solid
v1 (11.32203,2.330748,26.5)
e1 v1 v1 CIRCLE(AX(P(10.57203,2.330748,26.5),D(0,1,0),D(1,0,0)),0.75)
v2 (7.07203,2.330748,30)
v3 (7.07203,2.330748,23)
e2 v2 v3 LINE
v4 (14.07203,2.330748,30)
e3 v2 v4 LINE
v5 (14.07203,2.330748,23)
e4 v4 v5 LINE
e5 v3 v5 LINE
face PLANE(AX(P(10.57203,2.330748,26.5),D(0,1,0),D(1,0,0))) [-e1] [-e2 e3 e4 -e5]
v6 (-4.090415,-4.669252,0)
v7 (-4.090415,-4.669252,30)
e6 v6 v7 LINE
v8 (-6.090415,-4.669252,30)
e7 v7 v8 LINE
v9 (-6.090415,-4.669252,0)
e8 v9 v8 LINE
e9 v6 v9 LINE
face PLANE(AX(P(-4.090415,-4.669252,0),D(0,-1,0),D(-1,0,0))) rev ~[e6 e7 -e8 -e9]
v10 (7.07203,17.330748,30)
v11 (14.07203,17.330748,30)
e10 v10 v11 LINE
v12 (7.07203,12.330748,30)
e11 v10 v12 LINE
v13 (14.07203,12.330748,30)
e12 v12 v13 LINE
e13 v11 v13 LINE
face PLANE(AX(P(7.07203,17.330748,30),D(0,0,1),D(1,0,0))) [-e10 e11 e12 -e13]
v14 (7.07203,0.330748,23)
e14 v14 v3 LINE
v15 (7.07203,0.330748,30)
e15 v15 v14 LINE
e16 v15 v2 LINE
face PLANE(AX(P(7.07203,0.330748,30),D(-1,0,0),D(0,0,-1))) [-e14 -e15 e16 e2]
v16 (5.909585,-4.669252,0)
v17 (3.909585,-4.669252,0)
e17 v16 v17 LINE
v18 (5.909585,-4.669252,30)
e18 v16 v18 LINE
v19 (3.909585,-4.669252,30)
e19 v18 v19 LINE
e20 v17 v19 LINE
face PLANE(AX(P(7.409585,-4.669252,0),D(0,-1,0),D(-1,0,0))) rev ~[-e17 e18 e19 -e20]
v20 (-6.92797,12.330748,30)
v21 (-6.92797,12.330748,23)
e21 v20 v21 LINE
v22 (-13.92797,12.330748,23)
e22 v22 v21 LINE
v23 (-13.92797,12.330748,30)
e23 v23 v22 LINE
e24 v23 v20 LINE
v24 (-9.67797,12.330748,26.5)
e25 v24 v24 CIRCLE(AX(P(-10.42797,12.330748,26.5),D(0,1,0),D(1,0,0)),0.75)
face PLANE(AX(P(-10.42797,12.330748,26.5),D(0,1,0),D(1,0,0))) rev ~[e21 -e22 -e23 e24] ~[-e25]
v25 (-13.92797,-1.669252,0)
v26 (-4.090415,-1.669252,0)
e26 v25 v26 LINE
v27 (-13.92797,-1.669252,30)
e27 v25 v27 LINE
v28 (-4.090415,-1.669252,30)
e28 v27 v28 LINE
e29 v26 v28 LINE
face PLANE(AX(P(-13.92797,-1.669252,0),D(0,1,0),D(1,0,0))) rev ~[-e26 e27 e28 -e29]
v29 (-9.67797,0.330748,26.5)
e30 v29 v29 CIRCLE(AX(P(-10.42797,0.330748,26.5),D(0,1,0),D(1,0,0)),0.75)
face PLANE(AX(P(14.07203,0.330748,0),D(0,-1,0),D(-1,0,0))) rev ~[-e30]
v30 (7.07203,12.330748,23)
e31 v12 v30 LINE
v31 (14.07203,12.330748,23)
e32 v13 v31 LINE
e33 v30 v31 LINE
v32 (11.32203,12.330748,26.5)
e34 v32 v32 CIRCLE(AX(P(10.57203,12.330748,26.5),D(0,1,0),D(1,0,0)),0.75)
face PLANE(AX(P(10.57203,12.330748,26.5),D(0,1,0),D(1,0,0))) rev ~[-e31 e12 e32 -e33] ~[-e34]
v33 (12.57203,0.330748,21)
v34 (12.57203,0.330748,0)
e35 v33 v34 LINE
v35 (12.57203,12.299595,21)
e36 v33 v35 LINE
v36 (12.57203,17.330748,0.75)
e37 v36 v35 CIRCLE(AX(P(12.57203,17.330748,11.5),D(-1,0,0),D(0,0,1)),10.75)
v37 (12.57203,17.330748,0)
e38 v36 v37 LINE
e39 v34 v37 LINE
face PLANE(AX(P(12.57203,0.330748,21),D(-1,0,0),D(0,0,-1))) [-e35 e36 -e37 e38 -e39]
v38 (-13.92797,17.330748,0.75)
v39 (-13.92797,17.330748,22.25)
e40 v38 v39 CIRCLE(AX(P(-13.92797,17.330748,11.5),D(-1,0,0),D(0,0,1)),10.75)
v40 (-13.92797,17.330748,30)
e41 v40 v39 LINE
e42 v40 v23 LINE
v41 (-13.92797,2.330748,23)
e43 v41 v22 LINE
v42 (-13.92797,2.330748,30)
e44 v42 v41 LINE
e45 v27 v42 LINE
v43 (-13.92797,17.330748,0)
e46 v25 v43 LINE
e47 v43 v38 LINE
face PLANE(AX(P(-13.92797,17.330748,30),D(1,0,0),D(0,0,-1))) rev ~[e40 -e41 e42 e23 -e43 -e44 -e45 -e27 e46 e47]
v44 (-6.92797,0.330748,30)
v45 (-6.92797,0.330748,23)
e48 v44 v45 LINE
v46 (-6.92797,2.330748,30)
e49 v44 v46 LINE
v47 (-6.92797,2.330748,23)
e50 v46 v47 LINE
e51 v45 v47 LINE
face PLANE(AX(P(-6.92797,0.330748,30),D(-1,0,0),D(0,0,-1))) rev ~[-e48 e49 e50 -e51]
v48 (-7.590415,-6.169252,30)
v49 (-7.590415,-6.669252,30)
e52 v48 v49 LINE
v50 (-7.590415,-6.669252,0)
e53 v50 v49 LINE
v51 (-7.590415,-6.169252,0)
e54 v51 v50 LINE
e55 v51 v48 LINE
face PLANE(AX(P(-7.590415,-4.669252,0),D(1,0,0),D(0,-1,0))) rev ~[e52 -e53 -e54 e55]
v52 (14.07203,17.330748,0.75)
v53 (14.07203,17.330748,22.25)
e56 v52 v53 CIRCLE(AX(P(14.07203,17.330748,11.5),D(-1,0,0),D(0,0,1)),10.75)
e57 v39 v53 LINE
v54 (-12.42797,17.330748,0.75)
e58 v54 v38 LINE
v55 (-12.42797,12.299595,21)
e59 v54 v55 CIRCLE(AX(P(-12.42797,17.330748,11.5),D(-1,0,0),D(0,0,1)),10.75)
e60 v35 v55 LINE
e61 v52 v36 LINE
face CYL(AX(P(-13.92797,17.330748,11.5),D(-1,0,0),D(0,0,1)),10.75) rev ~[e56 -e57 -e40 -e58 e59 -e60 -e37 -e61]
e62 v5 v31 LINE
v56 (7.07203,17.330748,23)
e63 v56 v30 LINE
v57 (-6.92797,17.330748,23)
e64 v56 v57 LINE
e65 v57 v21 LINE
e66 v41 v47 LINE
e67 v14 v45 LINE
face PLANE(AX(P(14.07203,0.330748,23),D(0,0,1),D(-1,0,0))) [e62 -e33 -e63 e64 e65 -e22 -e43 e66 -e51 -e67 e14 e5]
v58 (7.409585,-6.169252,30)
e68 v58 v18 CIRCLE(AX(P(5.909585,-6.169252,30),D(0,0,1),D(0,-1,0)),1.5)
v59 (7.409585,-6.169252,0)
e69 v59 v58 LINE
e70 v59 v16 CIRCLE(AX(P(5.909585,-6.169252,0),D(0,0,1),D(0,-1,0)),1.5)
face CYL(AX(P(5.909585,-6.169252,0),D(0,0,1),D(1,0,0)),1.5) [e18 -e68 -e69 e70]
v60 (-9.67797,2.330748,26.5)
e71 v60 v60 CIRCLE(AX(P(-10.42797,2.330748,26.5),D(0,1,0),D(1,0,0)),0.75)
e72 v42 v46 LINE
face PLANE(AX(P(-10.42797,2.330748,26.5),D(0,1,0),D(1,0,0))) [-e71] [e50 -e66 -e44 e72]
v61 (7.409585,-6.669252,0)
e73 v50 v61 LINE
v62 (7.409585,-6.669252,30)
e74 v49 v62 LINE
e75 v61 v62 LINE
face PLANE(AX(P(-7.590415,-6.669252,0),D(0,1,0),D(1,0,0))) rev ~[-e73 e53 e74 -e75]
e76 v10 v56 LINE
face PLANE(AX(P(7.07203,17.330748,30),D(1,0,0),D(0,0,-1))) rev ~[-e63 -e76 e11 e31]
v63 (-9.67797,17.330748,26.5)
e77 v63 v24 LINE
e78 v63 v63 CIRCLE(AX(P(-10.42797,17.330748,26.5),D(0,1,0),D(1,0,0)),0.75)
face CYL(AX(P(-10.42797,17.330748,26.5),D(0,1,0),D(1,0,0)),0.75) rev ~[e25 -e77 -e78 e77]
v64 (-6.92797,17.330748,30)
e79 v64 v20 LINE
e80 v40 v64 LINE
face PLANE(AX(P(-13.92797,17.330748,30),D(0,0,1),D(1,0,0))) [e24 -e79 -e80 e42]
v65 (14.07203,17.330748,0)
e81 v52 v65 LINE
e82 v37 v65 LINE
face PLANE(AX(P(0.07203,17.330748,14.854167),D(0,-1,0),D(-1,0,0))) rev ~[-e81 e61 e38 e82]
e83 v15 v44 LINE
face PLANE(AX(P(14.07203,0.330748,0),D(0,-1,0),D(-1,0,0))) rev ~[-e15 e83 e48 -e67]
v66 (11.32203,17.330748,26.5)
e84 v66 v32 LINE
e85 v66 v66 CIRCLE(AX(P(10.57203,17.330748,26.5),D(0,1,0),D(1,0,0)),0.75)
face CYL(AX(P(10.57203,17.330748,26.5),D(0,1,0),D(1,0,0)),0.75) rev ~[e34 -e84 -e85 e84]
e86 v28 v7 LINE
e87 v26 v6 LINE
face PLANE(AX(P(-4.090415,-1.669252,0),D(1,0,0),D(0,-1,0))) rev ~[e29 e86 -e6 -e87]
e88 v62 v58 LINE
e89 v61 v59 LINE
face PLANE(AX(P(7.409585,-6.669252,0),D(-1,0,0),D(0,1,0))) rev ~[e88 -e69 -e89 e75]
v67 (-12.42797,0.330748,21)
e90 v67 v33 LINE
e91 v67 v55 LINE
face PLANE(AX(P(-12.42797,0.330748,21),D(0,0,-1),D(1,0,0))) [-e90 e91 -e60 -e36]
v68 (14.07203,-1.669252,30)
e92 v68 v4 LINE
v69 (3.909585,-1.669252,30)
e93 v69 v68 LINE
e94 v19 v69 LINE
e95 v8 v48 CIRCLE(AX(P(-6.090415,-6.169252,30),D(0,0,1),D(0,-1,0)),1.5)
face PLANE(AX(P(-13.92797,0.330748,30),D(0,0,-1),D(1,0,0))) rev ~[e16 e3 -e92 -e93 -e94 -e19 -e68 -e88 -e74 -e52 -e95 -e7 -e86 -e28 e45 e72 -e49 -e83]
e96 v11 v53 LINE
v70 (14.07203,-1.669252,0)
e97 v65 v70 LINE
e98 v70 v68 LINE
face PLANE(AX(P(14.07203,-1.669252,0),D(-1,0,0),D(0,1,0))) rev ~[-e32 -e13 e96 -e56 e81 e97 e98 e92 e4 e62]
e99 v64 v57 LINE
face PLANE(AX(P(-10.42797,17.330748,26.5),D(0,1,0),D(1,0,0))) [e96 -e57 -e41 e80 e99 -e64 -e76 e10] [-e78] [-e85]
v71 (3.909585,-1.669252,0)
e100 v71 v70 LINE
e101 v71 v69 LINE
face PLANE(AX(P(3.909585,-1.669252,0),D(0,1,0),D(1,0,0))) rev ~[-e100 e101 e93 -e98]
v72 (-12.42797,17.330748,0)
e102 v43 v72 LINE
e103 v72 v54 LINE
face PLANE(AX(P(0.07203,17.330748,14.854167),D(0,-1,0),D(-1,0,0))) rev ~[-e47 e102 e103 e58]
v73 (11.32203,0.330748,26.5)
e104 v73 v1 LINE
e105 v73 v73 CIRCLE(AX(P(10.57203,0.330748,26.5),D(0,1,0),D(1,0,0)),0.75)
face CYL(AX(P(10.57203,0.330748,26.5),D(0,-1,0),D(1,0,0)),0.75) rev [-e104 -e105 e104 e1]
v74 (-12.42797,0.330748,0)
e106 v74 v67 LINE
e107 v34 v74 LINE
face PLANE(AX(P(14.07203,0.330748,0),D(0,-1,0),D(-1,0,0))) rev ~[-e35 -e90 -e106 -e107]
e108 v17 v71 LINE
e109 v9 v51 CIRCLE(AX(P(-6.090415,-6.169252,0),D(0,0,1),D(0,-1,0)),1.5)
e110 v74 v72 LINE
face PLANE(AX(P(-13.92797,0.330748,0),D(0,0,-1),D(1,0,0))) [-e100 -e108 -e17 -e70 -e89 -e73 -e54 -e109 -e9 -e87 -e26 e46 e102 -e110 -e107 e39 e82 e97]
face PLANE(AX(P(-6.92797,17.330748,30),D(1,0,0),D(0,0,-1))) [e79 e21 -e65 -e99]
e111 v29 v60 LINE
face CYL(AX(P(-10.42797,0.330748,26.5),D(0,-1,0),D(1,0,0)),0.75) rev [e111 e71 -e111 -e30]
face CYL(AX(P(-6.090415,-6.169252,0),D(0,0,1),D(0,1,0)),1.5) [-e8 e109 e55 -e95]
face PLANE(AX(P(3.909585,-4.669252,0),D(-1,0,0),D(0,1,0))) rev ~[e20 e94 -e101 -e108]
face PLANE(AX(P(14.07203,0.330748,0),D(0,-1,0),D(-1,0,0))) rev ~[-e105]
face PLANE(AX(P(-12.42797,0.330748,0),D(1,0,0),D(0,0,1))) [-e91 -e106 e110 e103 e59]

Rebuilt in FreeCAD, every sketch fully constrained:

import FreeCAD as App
import Part
import Sketcher
from FreeCAD import Vector


def edges_at(feature, points):
    """Names of the edges that pass closest to the given points."""
    edges = feature.Shape.Edges
    near = lambda p: min(range(len(edges)), key=lambda i: edges[i].distToShape(Part.Vertex(*p))[0])
    return sorted({f"Edge{near(p) + 1}" for p in points})

doc = App.newDocument("Part")
body = doc.addObject("PartDesign::Body", "Body")

# Sketch on XY plane
sketch1 = doc.addObject("Sketcher::SketchObject", "Sketch")
body.addObject(sketch1)
sketch1.AttachmentSupport = (doc.XY_Plane, [""])
sketch1.MapMode = "FlatFace"
sketch1.addGeometry(Part.LineSegment(Vector(-13.9, -1.7, 0), Vector(-4.1, -1.7, 0)), False)
sketch1.addGeometry(Part.LineSegment(Vector(-4.1, -1.7, 0), Vector(-4.1, -4.7, 0)), False)
sketch1.addGeometry(Part.LineSegment(Vector(-4.1, -4.7, 0), Vector(-7.6, -4.7, 0)), False)
sketch1.addGeometry(Part.LineSegment(Vector(-7.6, -4.7, 0), Vector(-7.6, -6.7, 0)), False)
sketch1.addGeometry(Part.LineSegment(Vector(-7.6, -6.7, 0), Vector(7.4, -6.7, 0)), False)
sketch1.addGeometry(Part.LineSegment(Vector(7.4, -6.7, 0), Vector(7.4, -4.7, 0)), False)
sketch1.addGeometry(Part.LineSegment(Vector(7.4, -4.7, 0), Vector(3.9, -4.7, 0)), False)
sketch1.addGeometry(Part.LineSegment(Vector(3.9, -4.7, 0), Vector(3.9, -1.7, 0)), False)
sketch1.addGeometry(Part.LineSegment(Vector(3.9, -1.7, 0), Vector(14.1, -1.7, 0)), False)
sketch1.addGeometry(Part.LineSegment(Vector(14.1, -1.7, 0), Vector(14.1, 0.3, 0)), False)
sketch1.addGeometry(Part.LineSegment(Vector(14.1, 0.3, 0), Vector(-13.9, 0.3, 0)), False)
sketch1.addGeometry(Part.LineSegment(Vector(-13.9, 0.3, 0), Vector(-13.9, -1.7, 0)), False)
sketch1.addConstraint(Sketcher.Constraint("Coincident", 0, 2, 1, 1))
sketch1.addConstraint(Sketcher.Constraint("Coincident", 1, 2, 2, 1))
sketch1.addConstraint(Sketcher.Constraint("Coincident", 2, 2, 3, 1))
sketch1.addConstraint(Sketcher.Constraint("Coincident", 3, 2, 4, 1))
sketch1.addConstraint(Sketcher.Constraint("Coincident", 4, 2, 5, 1))
sketch1.addConstraint(Sketcher.Constraint("Coincident", 5, 2, 6, 1))
sketch1.addConstraint(Sketcher.Constraint("Coincident", 6, 2, 7, 1))
sketch1.addConstraint(Sketcher.Constraint("Coincident", 7, 2, 8, 1))
sketch1.addConstraint(Sketcher.Constraint("Coincident", 8, 2, 9, 1))
sketch1.addConstraint(Sketcher.Constraint("Coincident", 9, 2, 10, 1))
sketch1.addConstraint(Sketcher.Constraint("Coincident", 10, 2, 11, 1))
sketch1.addConstraint(Sketcher.Constraint("Coincident", 11, 2, 0, 1))
sketch1.addConstraint(Sketcher.Constraint("Horizontal", 0))
sketch1.addConstraint(Sketcher.Constraint("Vertical", 1))
sketch1.addConstraint(Sketcher.Constraint("Horizontal", 2))
sketch1.addConstraint(Sketcher.Constraint("Vertical", 3))
sketch1.addConstraint(Sketcher.Constraint("Horizontal", 4))
sketch1.addConstraint(Sketcher.Constraint("Vertical", 5))
sketch1.addConstraint(Sketcher.Constraint("Horizontal", 6))
sketch1.addConstraint(Sketcher.Constraint("Vertical", 7))
sketch1.addConstraint(Sketcher.Constraint("Horizontal", 8))
sketch1.addConstraint(Sketcher.Constraint("Vertical", 9))
sketch1.addConstraint(Sketcher.Constraint("Horizontal", 10))
sketch1.addConstraint(Sketcher.Constraint("Vertical", 11))
sketch1.addConstraint(Sketcher.Constraint("Horizontal", 2, 2, 5, 2))
sketch1.addConstraint(Sketcher.Constraint("Horizontal", 0, 2, 7, 2))
sketch1.addConstraint(Sketcher.Constraint("Equal", 2, 6))
sketch1.addConstraint(Sketcher.Constraint("Equal", 5, 9))
sketch1.addConstraint(Sketcher.Constraint("DistanceX", 4, 1, 4, 2, 15.0))
sketch1.addConstraint(Sketcher.Constraint("DistanceX", 10, 2, 10, 1, 28.0))
sketch1.addConstraint(Sketcher.Constraint("DistanceY", 1, 2, 1, 1, 3.0))
sketch1.addConstraint(Sketcher.Constraint("DistanceY", 3, 2, 3, 1, 2.0))
sketch1.addConstraint(Sketcher.Constraint("DistanceX", 2, 2, 2, 1, 3.5))
sketch1.addConstraint(Sketcher.Constraint("DistanceX", 0, 1, 0, 2, 9.837555))
sketch1.addConstraint(Sketcher.Constraint("DistanceY", 0, 2, -1, 1, 1.669252))
sketch1.addConstraint(Sketcher.Constraint("DistanceX", -1, 1, 8, 2, 14.07203))
pad1 = doc.addObject("PartDesign::Pad", "Pad")
body.addObject(pad1)
pad1.Profile = sketch1
pad1.Length = 30
doc.recompute()

fillet = doc.addObject("PartDesign::Fillet", "Fillet")
body.addObject(fillet)
fillet.Base = (pad1, edges_at(pad1, [(7.41, -4.669, 15), (-7.59, -4.669, 15)]))
fillet.Radius = 1.5

# Sketch on XZ plane
sketch2 = doc.addObject("Sketcher::SketchObject", "Sketch001")
body.addObject(sketch2)
sketch2.AttachmentSupport = (doc.XZ_Plane, [""])
sketch2.MapMode = "FlatFace"
sketch2.AttachmentOffset = App.Placement(Vector(0, 0, -0.330748), App.Rotation())
sketch2.addGeometry(Part.LineSegment(Vector(-12.4, 0, 0), Vector(-13.9, 0, 0)), False)
sketch2.addGeometry(Part.LineSegment(Vector(-13.9, 0, 0), Vector(-13.9, 23, 0)), False)
sketch2.addGeometry(Part.LineSegment(Vector(-13.9, 23, 0), Vector(14.1, 23, 0)), False)
sketch2.addGeometry(Part.LineSegment(Vector(14.1, 23, 0), Vector(14.1, 0, 0)), False)
sketch2.addGeometry(Part.LineSegment(Vector(14.1, 0, 0), Vector(12.6, 0, 0)), False)
sketch2.addGeometry(Part.LineSegment(Vector(12.6, 0, 0), Vector(12.6, 21, 0)), False)
sketch2.addGeometry(Part.LineSegment(Vector(12.6, 21, 0), Vector(-12.4, 21, 0)), False)
sketch2.addGeometry(Part.LineSegment(Vector(-12.4, 21, 0), Vector(-12.4, 0, 0)), False)
sketch2.addConstraint(Sketcher.Constraint("Coincident", 0, 2, 1, 1))
sketch2.addConstraint(Sketcher.Constraint("Coincident", 1, 2, 2, 1))
sketch2.addConstraint(Sketcher.Constraint("Coincident", 2, 2, 3, 1))
sketch2.addConstraint(Sketcher.Constraint("Coincident", 3, 2, 4, 1))
sketch2.addConstraint(Sketcher.Constraint("Coincident", 4, 2, 5, 1))
sketch2.addConstraint(Sketcher.Constraint("Coincident", 5, 2, 6, 1))
sketch2.addConstraint(Sketcher.Constraint("Coincident", 6, 2, 7, 1))
sketch2.addConstraint(Sketcher.Constraint("Coincident", 7, 2, 0, 1))
sketch2.addConstraint(Sketcher.Constraint("Horizontal", 0))
sketch2.addConstraint(Sketcher.Constraint("Vertical", 1))
sketch2.addConstraint(Sketcher.Constraint("Horizontal", 2))
sketch2.addConstraint(Sketcher.Constraint("Vertical", 3))
sketch2.addConstraint(Sketcher.Constraint("Horizontal", 4))
sketch2.addConstraint(Sketcher.Constraint("Vertical", 5))
sketch2.addConstraint(Sketcher.Constraint("Horizontal", 6))
sketch2.addConstraint(Sketcher.Constraint("Vertical", 7))
sketch2.addConstraint(Sketcher.Constraint("PointOnObject", 0, 2, -1))
sketch2.addConstraint(Sketcher.Constraint("PointOnObject", 3, 2, -1))
sketch2.addConstraint(Sketcher.Constraint("Equal", 0, 4))
sketch2.addConstraint(Sketcher.Constraint("DistanceX", 2, 1, 2, 2, 28.0))
sketch2.addConstraint(Sketcher.Constraint("DistanceX", 6, 2, 6, 1, 25.0))
sketch2.addConstraint(Sketcher.Constraint("DistanceY", 1, 1, 1, 2, 23.0))
sketch2.addConstraint(Sketcher.Constraint("DistanceY", 5, 1, 5, 2, 21.0))
sketch2.addConstraint(Sketcher.Constraint("DistanceX", 0, 2, -1, 1, 13.92797))
pad2 = doc.addObject("PartDesign::Pad", "Pad001")
body.addObject(pad2)
pad2.Profile = sketch2
pad2.Length = 17
pad2.Reversed = True

# Sketch on YZ plane
sketch3 = doc.addObject("Sketcher::SketchObject", "Sketch002")
body.addObject(sketch3)
sketch3.AttachmentSupport = (doc.YZ_Plane, [""])
sketch3.MapMode = "FlatFace"
sketch3.AttachmentOffset = App.Placement(Vector(0, 0, -13.92797), App.Rotation())
sketch3.addGeometry(Part.Circle(Vector(17, 12, 0), Vector(0, 0, 1), 11), False)
sketch3.addConstraint(Sketcher.Constraint("Diameter", 0, 21.5))
sketch3.addConstraint(Sketcher.Constraint("DistanceY", -1, 1, 0, 3, 11.5))
sketch3.addConstraint(Sketcher.Constraint("DistanceX", -1, 1, 0, 3, 17.330748))
pocket1 = doc.addObject("PartDesign::Pocket", "Pocket")
body.addObject(pocket1)
pocket1.Profile = sketch3
pocket1.Type = "ThroughAll"
pocket1.Reversed = True

# Sketch on XZ plane
sketch4 = doc.addObject("Sketcher::SketchObject", "Sketch003")
body.addObject(sketch4)
sketch4.AttachmentSupport = (doc.XZ_Plane, [""])
sketch4.MapMode = "FlatFace"
sketch4.AttachmentOffset = App.Placement(Vector(0, 0, -0.330748), App.Rotation())
sketch4.addGeometry(Part.LineSegment(Vector(-13.9, 23, 0), Vector(-13.9, 30, 0)), False)
sketch4.addGeometry(Part.LineSegment(Vector(-13.9, 30, 0), Vector(-6.9, 30, 0)), False)
sketch4.addGeometry(Part.LineSegment(Vector(-6.9, 30, 0), Vector(-6.9, 23, 0)), False)
sketch4.addGeometry(Part.LineSegment(Vector(-6.9, 23, 0), Vector(-13.9, 23, 0)), False)
sketch4.addGeometry(Part.Circle(Vector(-10.4, 26.5, 0), Vector(0, 0, 1), 0.8), False)
sketch4.addGeometry(Part.LineSegment(Vector(7.1, 23, 0), Vector(7.1, 30, 0)), False)
sketch4.addGeometry(Part.LineSegment(Vector(7.1, 30, 0), Vector(14.1, 30, 0)), False)
sketch4.addGeometry(Part.LineSegment(Vector(14.1, 30, 0), Vector(14.1, 23, 0)), False)
sketch4.addGeometry(Part.LineSegment(Vector(14.1, 23, 0), Vector(7.1, 23, 0)), False)
sketch4.addGeometry(Part.Circle(Vector(10.6, 26.5, 0), Vector(0, 0, 1), 0.8), False)
sketch4.addConstraint(Sketcher.Constraint("Coincident", 0, 2, 1, 1))
sketch4.addConstraint(Sketcher.Constraint("Coincident", 1, 2, 2, 1))
sketch4.addConstraint(Sketcher.Constraint("Coincident", 2, 2, 3, 1))
sketch4.addConstraint(Sketcher.Constraint("Coincident", 3, 2, 0, 1))
sketch4.addConstraint(Sketcher.Constraint("Coincident", 5, 2, 6, 1))
sketch4.addConstraint(Sketcher.Constraint("Coincident", 6, 2, 7, 1))
sketch4.addConstraint(Sketcher.Constraint("Coincident", 7, 2, 8, 1))
sketch4.addConstraint(Sketcher.Constraint("Coincident", 8, 2, 5, 1))
sketch4.addConstraint(Sketcher.Constraint("Vertical", 0))
sketch4.addConstraint(Sketcher.Constraint("Horizontal", 1))
sketch4.addConstraint(Sketcher.Constraint("Vertical", 2))
sketch4.addConstraint(Sketcher.Constraint("Horizontal", 3))
sketch4.addConstraint(Sketcher.Constraint("Vertical", 5))
sketch4.addConstraint(Sketcher.Constraint("Horizontal", 6))
sketch4.addConstraint(Sketcher.Constraint("Vertical", 7))
sketch4.addConstraint(Sketcher.Constraint("Horizontal", 8))
sketch4.addConstraint(Sketcher.Constraint("Equal", 4, 9))
sketch4.addConstraint(Sketcher.Constraint("Horizontal", 4, 3, 9, 3))
sketch4.addConstraint(Sketcher.Constraint("Horizontal", 1, 2, 5, 2))
sketch4.addConstraint(Sketcher.Constraint("Horizontal", 3, 2, 7, 2))
sketch4.addConstraint(Sketcher.Constraint("Equal", 3, 6))
sketch4.addConstraint(Sketcher.Constraint("Equal", 8, 0))
sketch4.addConstraint(Sketcher.Constraint("Diameter", 4, 1.5))
sketch4.addConstraint(Sketcher.Constraint("DistanceX", 1, 1, 1, 2, 7.0))
sketch4.addConstraint(Sketcher.Constraint("DistanceY", -1, 1, 0, 2, 30.0))
sketch4.addConstraint(Sketcher.Constraint("DistanceX", 4, 3, 9, 3, 21.0))
sketch4.addConstraint(Sketcher.Constraint("DistanceX", 1, 2, 5, 2, 14.0))
sketch4.addConstraint(Sketcher.Constraint("DistanceY", -1, 1, 4, 3, 26.5))
sketch4.addConstraint(Sketcher.Constraint("DistanceX", 0, 2, 4, 3, 3.5))
sketch4.addConstraint(Sketcher.Constraint("DistanceX", 4, 3, -1, 1, 10.42797))
pad3 = doc.addObject("PartDesign::Pad", "Pad002")
body.addObject(pad3)
pad3.Profile = sketch4
pad3.Length = 2
pad3.Reversed = True

# Sketch on XZ plane
sketch5 = doc.addObject("Sketcher::SketchObject", "Sketch004")
body.addObject(sketch5)
sketch5.AttachmentSupport = (doc.XZ_Plane, [""])
sketch5.MapMode = "FlatFace"
sketch5.AttachmentOffset = App.Placement(Vector(0, 0, -17.330748), App.Rotation())
sketch5.addGeometry(Part.LineSegment(Vector(-13.9, 23, 0), Vector(-13.9, 30, 0)), False)
sketch5.addGeometry(Part.LineSegment(Vector(-13.9, 30, 0), Vector(-6.9, 30, 0)), False)
sketch5.addGeometry(Part.LineSegment(Vector(-6.9, 30, 0), Vector(-6.9, 23, 0)), False)
sketch5.addGeometry(Part.LineSegment(Vector(-6.9, 23, 0), Vector(-13.9, 23, 0)), False)
sketch5.addGeometry(Part.Circle(Vector(-10.4, 26.5, 0), Vector(0, 0, 1), 0.8), False)
sketch5.addGeometry(Part.LineSegment(Vector(7.1, 23, 0), Vector(7.1, 30, 0)), False)
sketch5.addGeometry(Part.LineSegment(Vector(7.1, 30, 0), Vector(14.1, 30, 0)), False)
sketch5.addGeometry(Part.LineSegment(Vector(14.1, 30, 0), Vector(14.1, 23, 0)), False)
sketch5.addGeometry(Part.LineSegment(Vector(14.1, 23, 0), Vector(7.1, 23, 0)), False)
sketch5.addGeometry(Part.Circle(Vector(10.6, 26.5, 0), Vector(0, 0, 1), 0.8), False)
sketch5.addConstraint(Sketcher.Constraint("Coincident", 0, 2, 1, 1))
sketch5.addConstraint(Sketcher.Constraint("Coincident", 1, 2, 2, 1))
sketch5.addConstraint(Sketcher.Constraint("Coincident", 2, 2, 3, 1))
sketch5.addConstraint(Sketcher.Constraint("Coincident", 3, 2, 0, 1))
sketch5.addConstraint(Sketcher.Constraint("Coincident", 5, 2, 6, 1))
sketch5.addConstraint(Sketcher.Constraint("Coincident", 6, 2, 7, 1))
sketch5.addConstraint(Sketcher.Constraint("Coincident", 7, 2, 8, 1))
sketch5.addConstraint(Sketcher.Constraint("Coincident", 8, 2, 5, 1))
sketch5.addConstraint(Sketcher.Constraint("Vertical", 0))
sketch5.addConstraint(Sketcher.Constraint("Horizontal", 1))
sketch5.addConstraint(Sketcher.Constraint("Vertical", 2))
sketch5.addConstraint(Sketcher.Constraint("Horizontal", 3))
sketch5.addConstraint(Sketcher.Constraint("Vertical", 5))
sketch5.addConstraint(Sketcher.Constraint("Horizontal", 6))
sketch5.addConstraint(Sketcher.Constraint("Vertical", 7))
sketch5.addConstraint(Sketcher.Constraint("Horizontal", 8))
sketch5.addConstraint(Sketcher.Constraint("Equal", 4, 9))
sketch5.addConstraint(Sketcher.Constraint("Horizontal", 4, 3, 9, 3))
sketch5.addConstraint(Sketcher.Constraint("Horizontal", 1, 2, 5, 2))
sketch5.addConstraint(Sketcher.Constraint("Horizontal", 3, 2, 7, 2))
sketch5.addConstraint(Sketcher.Constraint("Equal", 3, 6))
sketch5.addConstraint(Sketcher.Constraint("Equal", 8, 0))
sketch5.addConstraint(Sketcher.Constraint("Diameter", 4, 1.5))
sketch5.addConstraint(Sketcher.Constraint("DistanceX", 1, 1, 1, 2, 7.0))
sketch5.addConstraint(Sketcher.Constraint("DistanceY", -1, 1, 0, 2, 30.0))
sketch5.addConstraint(Sketcher.Constraint("DistanceX", 4, 3, 9, 3, 21.0))
sketch5.addConstraint(Sketcher.Constraint("DistanceX", 1, 2, 5, 2, 14.0))
sketch5.addConstraint(Sketcher.Constraint("DistanceY", -1, 1, 4, 3, 26.5))
sketch5.addConstraint(Sketcher.Constraint("DistanceX", 0, 2, 4, 3, 3.5))
sketch5.addConstraint(Sketcher.Constraint("DistanceX", 4, 3, -1, 1, 10.42797))
pad4 = doc.addObject("PartDesign::Pad", "Pad003")
body.addObject(pad4)
pad4.Profile = sketch5
pad4.Length = 5

doc.recompute()
